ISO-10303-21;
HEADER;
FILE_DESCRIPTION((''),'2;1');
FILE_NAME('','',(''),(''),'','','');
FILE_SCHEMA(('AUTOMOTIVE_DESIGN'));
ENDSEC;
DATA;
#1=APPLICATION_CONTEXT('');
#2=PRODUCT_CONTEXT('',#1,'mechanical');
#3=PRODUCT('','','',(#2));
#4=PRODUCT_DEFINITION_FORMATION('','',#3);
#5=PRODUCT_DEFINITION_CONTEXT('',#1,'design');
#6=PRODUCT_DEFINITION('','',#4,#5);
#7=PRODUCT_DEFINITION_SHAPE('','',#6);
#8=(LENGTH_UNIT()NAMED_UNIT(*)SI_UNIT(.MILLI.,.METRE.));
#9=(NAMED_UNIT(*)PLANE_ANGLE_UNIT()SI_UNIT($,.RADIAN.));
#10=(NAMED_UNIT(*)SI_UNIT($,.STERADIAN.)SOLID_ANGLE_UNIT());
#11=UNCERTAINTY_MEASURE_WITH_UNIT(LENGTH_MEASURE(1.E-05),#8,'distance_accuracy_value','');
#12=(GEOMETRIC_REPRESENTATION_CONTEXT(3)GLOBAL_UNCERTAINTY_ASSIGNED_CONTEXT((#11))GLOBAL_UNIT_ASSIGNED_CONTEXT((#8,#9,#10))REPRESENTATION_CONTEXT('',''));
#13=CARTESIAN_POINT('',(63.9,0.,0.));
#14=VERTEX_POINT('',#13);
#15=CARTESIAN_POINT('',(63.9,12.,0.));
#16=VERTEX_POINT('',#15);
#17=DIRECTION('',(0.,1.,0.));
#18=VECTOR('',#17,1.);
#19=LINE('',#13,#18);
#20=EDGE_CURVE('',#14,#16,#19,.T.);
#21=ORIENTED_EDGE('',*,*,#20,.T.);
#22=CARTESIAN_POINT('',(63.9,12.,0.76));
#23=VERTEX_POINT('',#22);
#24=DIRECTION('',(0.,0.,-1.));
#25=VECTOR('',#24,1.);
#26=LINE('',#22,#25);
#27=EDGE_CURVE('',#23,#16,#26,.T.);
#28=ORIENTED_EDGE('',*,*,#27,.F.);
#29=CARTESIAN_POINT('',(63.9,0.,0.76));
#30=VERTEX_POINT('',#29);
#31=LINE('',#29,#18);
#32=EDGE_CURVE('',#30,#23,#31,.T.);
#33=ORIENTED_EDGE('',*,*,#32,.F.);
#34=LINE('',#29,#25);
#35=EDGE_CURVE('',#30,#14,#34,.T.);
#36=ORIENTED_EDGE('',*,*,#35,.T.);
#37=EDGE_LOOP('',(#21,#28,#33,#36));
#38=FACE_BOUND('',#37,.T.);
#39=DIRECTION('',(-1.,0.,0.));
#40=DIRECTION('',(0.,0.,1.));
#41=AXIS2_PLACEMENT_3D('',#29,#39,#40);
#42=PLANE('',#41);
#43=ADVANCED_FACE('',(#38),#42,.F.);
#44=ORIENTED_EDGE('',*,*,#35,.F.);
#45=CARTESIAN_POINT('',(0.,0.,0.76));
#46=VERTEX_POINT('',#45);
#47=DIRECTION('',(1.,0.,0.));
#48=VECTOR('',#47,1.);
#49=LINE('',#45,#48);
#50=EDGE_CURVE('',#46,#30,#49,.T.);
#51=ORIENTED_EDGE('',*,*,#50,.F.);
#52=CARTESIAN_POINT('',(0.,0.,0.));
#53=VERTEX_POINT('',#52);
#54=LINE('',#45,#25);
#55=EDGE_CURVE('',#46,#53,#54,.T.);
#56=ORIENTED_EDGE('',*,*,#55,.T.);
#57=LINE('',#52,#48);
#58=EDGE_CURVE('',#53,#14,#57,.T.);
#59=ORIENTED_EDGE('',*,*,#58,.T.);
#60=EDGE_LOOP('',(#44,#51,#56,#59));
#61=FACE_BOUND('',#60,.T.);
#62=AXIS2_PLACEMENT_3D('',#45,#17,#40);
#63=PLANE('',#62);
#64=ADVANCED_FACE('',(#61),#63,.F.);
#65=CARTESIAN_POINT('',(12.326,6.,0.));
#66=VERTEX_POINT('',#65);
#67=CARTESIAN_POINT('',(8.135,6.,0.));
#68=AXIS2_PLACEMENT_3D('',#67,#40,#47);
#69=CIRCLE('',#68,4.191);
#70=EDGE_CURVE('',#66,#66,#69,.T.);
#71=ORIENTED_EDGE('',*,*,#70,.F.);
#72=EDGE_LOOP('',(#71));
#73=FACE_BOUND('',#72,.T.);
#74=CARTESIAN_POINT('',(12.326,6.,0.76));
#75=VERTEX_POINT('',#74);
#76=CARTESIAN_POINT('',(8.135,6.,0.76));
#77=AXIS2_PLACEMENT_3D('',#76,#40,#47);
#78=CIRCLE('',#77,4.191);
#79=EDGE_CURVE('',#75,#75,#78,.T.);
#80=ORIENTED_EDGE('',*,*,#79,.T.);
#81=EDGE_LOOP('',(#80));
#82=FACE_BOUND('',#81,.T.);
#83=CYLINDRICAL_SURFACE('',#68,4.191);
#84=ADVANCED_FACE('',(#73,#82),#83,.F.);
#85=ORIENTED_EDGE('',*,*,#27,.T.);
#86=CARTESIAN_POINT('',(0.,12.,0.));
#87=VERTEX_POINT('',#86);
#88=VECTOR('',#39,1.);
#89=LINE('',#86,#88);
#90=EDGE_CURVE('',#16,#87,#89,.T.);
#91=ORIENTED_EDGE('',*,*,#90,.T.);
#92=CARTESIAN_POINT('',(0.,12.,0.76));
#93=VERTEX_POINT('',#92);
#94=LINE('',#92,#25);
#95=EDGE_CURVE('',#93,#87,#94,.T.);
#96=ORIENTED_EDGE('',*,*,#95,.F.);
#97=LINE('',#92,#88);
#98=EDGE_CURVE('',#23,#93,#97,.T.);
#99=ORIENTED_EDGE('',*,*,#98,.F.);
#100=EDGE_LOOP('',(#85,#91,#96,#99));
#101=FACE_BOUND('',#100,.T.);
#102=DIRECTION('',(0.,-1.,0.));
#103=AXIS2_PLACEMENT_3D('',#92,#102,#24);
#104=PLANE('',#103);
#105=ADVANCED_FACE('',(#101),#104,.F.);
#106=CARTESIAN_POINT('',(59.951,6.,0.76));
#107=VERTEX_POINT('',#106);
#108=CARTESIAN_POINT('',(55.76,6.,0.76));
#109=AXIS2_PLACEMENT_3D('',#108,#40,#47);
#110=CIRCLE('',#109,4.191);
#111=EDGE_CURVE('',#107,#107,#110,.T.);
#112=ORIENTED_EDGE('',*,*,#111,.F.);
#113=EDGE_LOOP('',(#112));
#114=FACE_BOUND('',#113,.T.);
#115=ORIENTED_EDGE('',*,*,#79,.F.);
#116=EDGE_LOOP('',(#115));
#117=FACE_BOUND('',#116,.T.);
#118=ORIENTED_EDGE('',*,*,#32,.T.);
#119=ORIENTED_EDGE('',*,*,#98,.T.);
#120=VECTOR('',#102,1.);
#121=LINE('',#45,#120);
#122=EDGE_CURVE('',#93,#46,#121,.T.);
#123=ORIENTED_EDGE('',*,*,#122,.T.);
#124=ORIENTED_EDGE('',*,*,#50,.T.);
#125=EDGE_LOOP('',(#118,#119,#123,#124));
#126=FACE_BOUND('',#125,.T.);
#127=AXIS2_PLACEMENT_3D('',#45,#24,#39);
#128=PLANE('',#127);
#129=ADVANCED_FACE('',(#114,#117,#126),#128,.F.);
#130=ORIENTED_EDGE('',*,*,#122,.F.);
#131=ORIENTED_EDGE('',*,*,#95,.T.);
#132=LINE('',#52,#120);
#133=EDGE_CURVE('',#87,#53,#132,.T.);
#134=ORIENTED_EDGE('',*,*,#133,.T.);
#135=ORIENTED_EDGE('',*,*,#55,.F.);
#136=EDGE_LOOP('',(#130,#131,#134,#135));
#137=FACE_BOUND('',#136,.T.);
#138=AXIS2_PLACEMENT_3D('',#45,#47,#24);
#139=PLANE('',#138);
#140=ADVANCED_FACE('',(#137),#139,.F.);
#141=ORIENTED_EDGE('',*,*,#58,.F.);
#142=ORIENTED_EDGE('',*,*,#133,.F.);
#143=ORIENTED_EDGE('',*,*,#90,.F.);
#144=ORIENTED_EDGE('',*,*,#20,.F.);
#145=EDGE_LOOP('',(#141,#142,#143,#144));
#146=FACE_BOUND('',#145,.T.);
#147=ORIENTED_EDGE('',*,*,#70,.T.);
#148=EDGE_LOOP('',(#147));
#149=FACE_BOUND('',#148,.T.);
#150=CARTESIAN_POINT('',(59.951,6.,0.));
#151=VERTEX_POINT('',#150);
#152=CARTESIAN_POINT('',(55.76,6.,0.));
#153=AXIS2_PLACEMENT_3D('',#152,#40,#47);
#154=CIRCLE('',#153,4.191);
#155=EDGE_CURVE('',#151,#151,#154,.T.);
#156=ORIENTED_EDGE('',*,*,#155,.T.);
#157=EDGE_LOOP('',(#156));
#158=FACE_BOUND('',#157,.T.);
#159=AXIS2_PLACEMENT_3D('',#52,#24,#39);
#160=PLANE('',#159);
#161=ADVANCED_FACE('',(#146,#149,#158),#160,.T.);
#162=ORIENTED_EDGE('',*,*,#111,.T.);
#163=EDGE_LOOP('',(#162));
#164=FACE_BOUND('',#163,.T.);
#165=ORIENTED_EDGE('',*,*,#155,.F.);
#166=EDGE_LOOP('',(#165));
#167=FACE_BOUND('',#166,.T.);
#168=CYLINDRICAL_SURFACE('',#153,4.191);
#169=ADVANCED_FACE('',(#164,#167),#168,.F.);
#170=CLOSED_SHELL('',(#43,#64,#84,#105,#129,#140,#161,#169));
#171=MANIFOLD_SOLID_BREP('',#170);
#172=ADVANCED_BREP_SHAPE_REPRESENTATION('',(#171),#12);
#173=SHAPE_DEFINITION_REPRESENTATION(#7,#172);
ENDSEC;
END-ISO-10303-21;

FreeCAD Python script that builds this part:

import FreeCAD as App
import Part
import Sketcher

V = App.Vector

doc = App.newDocument("Part")
body = doc.addObject("PartDesign::Body", "Body")

sketch1 = body.newObject("Sketcher::SketchObject", "Sketch")
sketch1.AttachmentSupport = (doc.getObject("XY_Plane"), [""])
sketch1.MapMode = "FlatFace"
sketch1.addGeometry(Part.LineSegment(V(0, 12, 0), V(0, 0, 0)), False)
sketch1.addGeometry(Part.LineSegment(V(0, 0, 0), V(63.9, 0, 0)), False)
sketch1.addGeometry(Part.LineSegment(V(63.9, 0, 0), V(63.9, 12, 0)), False)
sketch1.addGeometry(Part.LineSegment(V(63.9, 12, 0), V(0, 12, 0)), False)
sketch1.addConstraint(Sketcher.Constraint("Coincident", 0, 2, 1, 1))
sketch1.addConstraint(Sketcher.Constraint("Coincident", 1, 2, 2, 1))
sketch1.addConstraint(Sketcher.Constraint("Coincident", 2, 2, 3, 1))
sketch1.addConstraint(Sketcher.Constraint("Coincident", 3, 2, 0, 1))
sketch1.addConstraint(Sketcher.Constraint("Vertical", 0))
sketch1.addConstraint(Sketcher.Constraint("Horizontal", 1))
sketch1.addConstraint(Sketcher.Constraint("Vertical", 2))
sketch1.addConstraint(Sketcher.Constraint("Horizontal", 3))
sketch1.addConstraint(Sketcher.Constraint("Coincident", 0, 2, -1, 1))
sketch1.addConstraint(Sketcher.Constraint("DistanceY", 0, 2, 0, 1, 12.0))
sketch1.addConstraint(Sketcher.Constraint("DistanceX", 1, 1, 1, 2, 63.9))
pad1 = body.newObject("PartDesign::Pad", "Pad")
pad1.Profile = sketch1
pad1.Length = 0.76

sketch2 = body.newObject("Sketcher::SketchObject", "Sketch001")
sketch2.AttachmentSupport = (doc.getObject("XY_Plane"), [""])
sketch2.MapMode = "FlatFace"
sketch2.AttachmentOffset = App.Placement(V(0, 0, 0.76), App.Rotation())
sketch2.addGeometry(Part.Circle(V(8.135, 6, 0), V(0, 0, 1), 4.191), False)
sketch2.addGeometry(Part.Circle(V(55.76, 6, 0), V(0, 0, 1), 4.191), False)
sketch2.addConstraint(Sketcher.Constraint("Equal", 0, 1))
sketch2.addConstraint(Sketcher.Constraint("Horizontal", 0, 3, 1, 3))
sketch2.addConstraint(Sketcher.Constraint("Diameter", 0, 8.382))
sketch2.addConstraint(Sketcher.Constraint("DistanceY", -1, 1, 0, 3, 6.0))
sketch2.addConstraint(Sketcher.Constraint("DistanceX", -1, 1, 1, 3, 55.76))
sketch2.addConstraint(Sketcher.Constraint("DistanceX", -1, 1, 0, 3, 8.135))
pocket1 = body.newObject("PartDesign::Pocket", "Pocket")
pocket1.Profile = sketch2
pocket1.Type = "ThroughAll"

doc.recompute()
